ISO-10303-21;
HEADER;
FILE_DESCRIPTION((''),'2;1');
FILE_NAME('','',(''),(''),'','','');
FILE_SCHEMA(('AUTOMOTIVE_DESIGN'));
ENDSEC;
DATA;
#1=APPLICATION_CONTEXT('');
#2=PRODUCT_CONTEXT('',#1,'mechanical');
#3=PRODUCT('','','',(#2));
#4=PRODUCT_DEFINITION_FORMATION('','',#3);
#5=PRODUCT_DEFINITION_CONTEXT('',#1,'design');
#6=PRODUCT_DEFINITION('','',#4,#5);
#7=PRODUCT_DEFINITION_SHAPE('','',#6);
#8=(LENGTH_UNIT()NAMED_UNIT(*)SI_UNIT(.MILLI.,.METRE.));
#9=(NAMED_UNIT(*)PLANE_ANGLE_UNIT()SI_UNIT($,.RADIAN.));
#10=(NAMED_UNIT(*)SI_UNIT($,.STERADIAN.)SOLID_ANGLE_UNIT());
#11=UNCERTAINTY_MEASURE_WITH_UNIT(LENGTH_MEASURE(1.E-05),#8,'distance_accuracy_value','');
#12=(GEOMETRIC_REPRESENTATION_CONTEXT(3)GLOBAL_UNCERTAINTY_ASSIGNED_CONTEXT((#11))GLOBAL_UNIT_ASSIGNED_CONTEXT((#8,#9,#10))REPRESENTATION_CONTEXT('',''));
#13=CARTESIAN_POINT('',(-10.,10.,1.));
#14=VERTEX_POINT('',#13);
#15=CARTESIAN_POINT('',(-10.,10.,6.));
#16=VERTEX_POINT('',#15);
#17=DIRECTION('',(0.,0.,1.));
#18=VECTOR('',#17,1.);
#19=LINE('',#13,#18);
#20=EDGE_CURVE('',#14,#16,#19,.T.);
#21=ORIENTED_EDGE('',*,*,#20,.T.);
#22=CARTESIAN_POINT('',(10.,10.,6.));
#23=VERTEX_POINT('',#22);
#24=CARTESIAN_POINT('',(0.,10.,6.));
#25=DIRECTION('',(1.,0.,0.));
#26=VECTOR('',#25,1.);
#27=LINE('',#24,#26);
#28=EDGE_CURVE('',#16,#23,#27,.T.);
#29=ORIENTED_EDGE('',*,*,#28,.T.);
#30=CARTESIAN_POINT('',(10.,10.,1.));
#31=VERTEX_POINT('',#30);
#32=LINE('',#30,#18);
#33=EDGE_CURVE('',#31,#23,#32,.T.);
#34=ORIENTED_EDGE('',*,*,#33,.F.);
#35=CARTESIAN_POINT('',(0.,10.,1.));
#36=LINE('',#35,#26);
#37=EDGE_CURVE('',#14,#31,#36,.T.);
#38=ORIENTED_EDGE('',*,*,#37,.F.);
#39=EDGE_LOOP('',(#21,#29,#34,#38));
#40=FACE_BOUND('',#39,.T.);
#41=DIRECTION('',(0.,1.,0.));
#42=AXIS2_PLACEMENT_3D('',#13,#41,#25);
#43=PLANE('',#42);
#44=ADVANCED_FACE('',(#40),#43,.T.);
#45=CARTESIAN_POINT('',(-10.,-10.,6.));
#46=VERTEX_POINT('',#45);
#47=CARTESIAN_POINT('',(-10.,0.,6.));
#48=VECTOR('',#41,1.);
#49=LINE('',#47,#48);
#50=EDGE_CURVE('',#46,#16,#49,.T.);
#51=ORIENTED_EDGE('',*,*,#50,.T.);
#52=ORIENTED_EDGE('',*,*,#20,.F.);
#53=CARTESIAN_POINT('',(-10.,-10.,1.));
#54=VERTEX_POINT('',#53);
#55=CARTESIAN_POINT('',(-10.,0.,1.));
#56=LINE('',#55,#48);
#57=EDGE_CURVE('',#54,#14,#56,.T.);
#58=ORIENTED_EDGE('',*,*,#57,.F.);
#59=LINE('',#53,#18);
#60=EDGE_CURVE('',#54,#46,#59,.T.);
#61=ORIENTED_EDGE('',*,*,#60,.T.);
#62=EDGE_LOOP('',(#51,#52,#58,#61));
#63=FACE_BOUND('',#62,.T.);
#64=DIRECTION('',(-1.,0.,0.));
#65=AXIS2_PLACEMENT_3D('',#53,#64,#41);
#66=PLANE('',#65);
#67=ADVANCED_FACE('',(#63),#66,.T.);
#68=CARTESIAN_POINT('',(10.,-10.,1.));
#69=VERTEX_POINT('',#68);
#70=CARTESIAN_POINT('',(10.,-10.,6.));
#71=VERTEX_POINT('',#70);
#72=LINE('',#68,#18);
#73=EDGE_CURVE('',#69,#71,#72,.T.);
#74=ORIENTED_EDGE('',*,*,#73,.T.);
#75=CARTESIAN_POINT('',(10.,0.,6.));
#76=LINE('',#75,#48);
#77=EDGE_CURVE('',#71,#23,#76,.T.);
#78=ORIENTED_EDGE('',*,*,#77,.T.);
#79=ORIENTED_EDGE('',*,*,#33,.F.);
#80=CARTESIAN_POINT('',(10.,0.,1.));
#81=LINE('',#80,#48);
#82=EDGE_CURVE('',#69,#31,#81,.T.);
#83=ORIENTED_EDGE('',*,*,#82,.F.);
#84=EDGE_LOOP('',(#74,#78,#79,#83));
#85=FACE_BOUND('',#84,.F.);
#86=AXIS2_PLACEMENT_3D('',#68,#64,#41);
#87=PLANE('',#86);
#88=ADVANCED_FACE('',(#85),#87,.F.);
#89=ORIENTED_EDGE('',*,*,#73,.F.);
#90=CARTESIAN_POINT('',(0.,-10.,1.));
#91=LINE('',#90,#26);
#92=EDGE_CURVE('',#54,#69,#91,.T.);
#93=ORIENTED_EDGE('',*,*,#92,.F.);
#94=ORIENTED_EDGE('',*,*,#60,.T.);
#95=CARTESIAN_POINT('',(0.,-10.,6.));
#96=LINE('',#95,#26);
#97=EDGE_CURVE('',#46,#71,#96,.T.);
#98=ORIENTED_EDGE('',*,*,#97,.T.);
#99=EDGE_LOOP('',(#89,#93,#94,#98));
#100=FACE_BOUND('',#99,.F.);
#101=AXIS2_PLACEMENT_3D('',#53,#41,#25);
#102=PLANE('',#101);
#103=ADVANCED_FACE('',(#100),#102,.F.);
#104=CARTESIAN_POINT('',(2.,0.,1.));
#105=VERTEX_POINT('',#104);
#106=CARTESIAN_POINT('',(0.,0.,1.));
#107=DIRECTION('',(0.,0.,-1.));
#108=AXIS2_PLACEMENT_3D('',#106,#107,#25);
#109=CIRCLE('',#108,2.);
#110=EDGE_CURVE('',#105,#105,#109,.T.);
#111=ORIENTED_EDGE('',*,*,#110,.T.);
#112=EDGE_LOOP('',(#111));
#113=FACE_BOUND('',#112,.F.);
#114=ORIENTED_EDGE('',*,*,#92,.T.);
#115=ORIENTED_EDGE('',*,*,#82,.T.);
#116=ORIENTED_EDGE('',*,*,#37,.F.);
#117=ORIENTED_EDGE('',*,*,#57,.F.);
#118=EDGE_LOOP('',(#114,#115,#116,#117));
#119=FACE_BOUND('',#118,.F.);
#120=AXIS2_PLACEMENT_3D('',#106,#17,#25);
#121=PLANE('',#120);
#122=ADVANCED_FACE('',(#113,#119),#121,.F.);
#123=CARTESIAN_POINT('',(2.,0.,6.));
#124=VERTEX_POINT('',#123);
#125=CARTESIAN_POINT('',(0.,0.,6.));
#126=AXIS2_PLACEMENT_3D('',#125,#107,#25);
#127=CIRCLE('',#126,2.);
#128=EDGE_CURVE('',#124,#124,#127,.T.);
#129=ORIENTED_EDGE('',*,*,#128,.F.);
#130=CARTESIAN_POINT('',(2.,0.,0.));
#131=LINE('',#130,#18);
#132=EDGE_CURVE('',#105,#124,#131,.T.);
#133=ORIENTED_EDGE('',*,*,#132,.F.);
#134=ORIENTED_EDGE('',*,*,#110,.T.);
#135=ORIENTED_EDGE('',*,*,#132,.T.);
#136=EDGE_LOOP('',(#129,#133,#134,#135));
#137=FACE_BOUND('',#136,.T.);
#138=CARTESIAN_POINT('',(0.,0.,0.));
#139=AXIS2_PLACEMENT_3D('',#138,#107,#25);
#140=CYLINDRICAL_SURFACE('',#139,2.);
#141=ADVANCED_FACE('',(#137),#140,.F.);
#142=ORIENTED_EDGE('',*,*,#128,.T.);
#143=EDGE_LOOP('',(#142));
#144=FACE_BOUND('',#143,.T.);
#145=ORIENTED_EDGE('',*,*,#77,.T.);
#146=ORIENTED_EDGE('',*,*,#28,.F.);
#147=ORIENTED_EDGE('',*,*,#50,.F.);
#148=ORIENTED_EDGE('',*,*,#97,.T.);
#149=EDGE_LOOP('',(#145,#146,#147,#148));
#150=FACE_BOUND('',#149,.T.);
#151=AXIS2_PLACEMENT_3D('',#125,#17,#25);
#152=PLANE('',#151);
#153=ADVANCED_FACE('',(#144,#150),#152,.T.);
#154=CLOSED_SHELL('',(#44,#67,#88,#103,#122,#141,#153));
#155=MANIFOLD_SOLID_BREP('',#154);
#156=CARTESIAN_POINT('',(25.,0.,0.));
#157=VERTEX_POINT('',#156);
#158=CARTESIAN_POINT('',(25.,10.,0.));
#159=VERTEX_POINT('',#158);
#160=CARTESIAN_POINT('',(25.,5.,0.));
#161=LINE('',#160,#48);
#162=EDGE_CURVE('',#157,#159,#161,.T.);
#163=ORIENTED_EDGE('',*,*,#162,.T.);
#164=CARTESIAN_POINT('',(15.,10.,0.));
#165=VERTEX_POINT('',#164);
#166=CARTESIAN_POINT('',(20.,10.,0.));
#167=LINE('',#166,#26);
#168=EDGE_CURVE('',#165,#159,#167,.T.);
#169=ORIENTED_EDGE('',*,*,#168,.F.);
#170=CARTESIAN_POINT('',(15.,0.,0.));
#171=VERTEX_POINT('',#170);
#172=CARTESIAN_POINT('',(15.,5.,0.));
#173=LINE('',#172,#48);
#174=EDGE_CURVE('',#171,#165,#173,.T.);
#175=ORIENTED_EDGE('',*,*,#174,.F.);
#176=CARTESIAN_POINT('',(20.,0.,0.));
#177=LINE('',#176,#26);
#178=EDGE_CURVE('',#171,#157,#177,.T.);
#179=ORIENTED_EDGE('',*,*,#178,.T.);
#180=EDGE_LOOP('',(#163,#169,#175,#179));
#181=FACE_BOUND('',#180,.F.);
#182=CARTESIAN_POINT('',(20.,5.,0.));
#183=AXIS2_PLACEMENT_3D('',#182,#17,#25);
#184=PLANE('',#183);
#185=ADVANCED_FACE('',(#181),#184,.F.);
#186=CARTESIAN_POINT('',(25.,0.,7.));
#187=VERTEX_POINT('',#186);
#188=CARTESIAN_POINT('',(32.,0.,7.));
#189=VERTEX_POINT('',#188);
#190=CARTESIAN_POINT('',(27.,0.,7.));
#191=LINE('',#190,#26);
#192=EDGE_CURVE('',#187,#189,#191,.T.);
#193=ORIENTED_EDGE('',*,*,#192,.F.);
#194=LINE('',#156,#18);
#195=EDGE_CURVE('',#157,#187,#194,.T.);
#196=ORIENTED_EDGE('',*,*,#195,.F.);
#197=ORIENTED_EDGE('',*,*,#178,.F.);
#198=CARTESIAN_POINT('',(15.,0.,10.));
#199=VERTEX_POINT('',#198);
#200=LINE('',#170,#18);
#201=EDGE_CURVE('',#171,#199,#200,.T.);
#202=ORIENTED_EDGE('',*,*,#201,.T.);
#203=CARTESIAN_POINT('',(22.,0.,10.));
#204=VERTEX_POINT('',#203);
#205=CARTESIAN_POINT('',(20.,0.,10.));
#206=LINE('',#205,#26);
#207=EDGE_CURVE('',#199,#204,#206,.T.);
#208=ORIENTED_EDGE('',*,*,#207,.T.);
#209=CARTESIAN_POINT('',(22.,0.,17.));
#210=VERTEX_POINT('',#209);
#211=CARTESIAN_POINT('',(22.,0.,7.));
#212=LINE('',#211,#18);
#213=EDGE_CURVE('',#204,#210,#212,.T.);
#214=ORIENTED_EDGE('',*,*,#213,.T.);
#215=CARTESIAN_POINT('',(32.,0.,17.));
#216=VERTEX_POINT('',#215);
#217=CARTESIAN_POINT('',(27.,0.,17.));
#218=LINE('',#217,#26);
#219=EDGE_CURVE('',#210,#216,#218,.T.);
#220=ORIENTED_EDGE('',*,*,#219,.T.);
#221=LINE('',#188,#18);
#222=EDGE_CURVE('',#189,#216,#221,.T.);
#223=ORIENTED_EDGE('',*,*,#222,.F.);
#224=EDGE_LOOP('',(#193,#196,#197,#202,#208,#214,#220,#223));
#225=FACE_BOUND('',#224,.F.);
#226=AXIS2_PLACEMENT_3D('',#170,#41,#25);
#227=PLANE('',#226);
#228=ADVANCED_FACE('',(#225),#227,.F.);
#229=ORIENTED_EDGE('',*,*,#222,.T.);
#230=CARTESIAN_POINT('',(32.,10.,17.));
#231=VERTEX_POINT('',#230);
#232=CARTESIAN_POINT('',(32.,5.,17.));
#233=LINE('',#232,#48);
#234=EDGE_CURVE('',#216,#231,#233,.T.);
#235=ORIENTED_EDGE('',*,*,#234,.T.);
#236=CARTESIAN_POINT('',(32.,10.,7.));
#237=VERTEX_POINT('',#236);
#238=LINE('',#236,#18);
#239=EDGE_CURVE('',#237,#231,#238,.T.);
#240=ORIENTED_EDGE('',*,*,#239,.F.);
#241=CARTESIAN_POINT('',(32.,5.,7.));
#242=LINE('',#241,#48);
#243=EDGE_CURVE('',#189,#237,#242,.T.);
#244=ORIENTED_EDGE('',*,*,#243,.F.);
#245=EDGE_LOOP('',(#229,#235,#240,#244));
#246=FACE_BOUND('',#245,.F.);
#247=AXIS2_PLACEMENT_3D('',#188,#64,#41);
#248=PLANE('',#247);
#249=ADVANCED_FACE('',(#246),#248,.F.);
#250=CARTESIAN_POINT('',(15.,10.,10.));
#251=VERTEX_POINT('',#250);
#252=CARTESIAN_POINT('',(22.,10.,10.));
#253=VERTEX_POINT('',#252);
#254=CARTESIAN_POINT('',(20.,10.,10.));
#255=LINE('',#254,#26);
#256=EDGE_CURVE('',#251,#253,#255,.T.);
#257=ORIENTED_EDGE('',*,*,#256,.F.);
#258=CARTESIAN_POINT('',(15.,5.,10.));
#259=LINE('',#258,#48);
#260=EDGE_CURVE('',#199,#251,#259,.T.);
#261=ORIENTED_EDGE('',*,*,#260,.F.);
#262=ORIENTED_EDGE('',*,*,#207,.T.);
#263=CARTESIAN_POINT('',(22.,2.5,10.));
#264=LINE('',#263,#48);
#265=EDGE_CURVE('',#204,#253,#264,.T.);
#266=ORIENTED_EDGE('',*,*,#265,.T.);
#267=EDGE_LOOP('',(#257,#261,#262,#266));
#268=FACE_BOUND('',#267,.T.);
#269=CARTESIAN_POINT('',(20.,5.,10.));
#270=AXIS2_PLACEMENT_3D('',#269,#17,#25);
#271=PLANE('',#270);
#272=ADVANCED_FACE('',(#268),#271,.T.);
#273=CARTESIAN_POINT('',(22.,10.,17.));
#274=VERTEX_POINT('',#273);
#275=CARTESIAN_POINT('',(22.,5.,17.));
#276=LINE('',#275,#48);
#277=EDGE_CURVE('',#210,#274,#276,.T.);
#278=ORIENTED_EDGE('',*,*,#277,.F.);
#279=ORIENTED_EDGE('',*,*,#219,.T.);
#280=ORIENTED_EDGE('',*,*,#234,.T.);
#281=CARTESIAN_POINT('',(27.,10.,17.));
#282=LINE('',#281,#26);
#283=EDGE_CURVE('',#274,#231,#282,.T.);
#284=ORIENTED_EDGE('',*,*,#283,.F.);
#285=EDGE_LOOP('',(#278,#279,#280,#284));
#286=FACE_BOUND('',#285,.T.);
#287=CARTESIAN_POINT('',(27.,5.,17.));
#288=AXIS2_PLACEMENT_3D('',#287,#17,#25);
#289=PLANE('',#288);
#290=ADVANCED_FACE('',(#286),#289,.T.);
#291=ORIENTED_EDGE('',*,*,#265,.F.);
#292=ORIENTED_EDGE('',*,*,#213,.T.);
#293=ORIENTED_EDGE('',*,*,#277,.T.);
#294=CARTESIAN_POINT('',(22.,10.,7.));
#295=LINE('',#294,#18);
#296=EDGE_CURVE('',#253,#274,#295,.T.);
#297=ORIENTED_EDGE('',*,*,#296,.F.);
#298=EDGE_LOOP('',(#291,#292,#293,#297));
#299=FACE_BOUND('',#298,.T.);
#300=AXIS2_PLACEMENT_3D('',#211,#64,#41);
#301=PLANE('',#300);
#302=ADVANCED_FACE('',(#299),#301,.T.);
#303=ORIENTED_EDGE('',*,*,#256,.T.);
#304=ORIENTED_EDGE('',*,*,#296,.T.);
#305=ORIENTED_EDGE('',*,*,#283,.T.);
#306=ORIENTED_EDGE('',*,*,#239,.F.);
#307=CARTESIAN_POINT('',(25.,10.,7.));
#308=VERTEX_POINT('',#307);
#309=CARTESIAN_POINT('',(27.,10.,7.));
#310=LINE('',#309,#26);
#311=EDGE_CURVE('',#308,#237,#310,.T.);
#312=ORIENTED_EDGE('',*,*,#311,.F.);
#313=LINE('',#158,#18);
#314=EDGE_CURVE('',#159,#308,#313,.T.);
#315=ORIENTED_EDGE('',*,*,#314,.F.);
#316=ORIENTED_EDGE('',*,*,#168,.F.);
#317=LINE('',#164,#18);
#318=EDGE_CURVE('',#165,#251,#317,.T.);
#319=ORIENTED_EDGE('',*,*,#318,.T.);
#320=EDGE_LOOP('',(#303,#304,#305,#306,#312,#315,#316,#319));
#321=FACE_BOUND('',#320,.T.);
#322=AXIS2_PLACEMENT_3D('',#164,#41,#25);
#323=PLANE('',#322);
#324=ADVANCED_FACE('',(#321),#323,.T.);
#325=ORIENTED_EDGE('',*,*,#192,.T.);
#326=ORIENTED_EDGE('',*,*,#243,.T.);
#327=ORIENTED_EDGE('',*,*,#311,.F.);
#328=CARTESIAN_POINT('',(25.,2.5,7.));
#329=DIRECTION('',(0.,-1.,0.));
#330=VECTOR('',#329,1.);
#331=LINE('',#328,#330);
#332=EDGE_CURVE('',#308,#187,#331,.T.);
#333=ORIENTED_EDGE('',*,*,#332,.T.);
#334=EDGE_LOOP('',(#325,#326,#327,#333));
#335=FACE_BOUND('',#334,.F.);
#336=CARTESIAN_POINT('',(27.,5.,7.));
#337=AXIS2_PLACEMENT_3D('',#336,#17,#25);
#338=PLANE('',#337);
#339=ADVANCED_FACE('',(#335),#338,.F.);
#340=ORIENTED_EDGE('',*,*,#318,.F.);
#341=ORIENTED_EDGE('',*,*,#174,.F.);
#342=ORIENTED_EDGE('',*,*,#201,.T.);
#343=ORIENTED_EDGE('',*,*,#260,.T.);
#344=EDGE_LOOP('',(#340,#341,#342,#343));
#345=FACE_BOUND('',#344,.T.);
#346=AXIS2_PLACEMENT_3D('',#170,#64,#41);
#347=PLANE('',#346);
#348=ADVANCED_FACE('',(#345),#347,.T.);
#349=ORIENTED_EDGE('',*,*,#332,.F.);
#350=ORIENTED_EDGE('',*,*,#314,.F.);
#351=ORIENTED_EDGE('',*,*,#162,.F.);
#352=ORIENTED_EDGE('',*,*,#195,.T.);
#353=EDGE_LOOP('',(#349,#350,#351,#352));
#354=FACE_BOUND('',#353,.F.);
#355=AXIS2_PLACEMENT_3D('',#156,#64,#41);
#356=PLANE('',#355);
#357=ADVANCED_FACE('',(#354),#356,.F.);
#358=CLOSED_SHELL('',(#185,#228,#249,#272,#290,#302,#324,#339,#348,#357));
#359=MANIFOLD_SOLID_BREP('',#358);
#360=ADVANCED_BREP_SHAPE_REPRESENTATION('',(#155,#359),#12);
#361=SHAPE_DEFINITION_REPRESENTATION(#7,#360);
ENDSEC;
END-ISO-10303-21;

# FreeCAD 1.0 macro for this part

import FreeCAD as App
import Part
import Sketcher
from FreeCAD import Vector
Q = App.Units.Quantity


def add_polygon(sketch, points):
    """Adds a closed chain of lines whose ends are joined by coincident constraints."""
    first, n = sketch.GeometryCount, len(points)
    for a, b in zip(points, points[1:] + points[:1]):
        sketch.addGeometry(Part.LineSegment(App.Vector(*a, 0), App.Vector(*b, 0)), False)
    for i in range(n):
        sketch.addConstraint(Sketcher.Constraint("Coincident", first + i, 2, first + (i + 1) % n, 1))

doc = App.newDocument("Part")
body = doc.addObject("PartDesign::Body", "Body")

# Sketch on XY plane
sketch1 = doc.addObject("Sketcher::SketchObject", "Sketch")
body.addObject(sketch1)
sketch1.AttachmentSupport = (doc.XY_Plane, [""])
sketch1.MapMode = "FlatFace"
sketch1.addGeometry(Part.Circle(Vector(0, 0, 0), Vector(0, 0, 1), 2), False)
sketch1.addConstraint([
    Sketcher.Constraint("Coincident", 0, 3, -1, 1),
    Sketcher.Constraint("Diameter", 0, Q("4 mm")),
])
pad1 = doc.addObject("PartDesign::Pad", "Pad")
body.addObject(pad1)
pad1.Profile = sketch1
pad1.Length = 10
body2 = doc.addObject("PartDesign::Body", "Body001")

# Sketch on XY plane
sketch2 = doc.addObject("Sketcher::SketchObject", "Sketch001")
body2.addObject(sketch2)
sketch2.AttachmentSupport = (doc.getObject("XY_Plane001"), [""])
sketch2.MapMode = "FlatFace"
sketch2.AttachmentOffset = App.Placement(Vector(0, 0, 1), App.Rotation())
add_polygon(sketch2, [(-10, 10), (-10, -10), (10, -10), (10, 10)])  # lines 0-3
sketch2.addConstraint([
    Sketcher.Constraint("Vertical", 0),
    Sketcher.Constraint("Horizontal", 1),
    Sketcher.Constraint("Vertical", 2),
    Sketcher.Constraint("Horizontal", 3),
    Sketcher.Constraint("Symmetric", 0, 2, 2, 2, -1, 1),
    Sketcher.Constraint("Equal", 3, 0),
    Sketcher.Constraint("DistanceX", 1, 1, 1, 2, Q("20 mm")),
])
pad2 = doc.addObject("PartDesign::Pad", "Pad001")
body2.addObject(pad2)
pad2.Profile = sketch2
pad2.Length = 5
doc.recompute()

boolean = doc.addObject("PartDesign::Boolean", "Boolean")
body2.addObject(boolean)
boolean.Type = "Cut"
boolean.addObjects([body])
body3 = doc.addObject("PartDesign::Body", "Body002")

# Sketch on XY plane
sketch3 = doc.addObject("Sketcher::SketchObject", "Sketch002")
body3.addObject(sketch3)
sketch3.AttachmentSupport = (doc.getObject("XY_Plane002"), [""])
sketch3.MapMode = "FlatFace"
add_polygon(sketch3, [(15, 10), (15, 0), (25, 0), (25, 10)])  # lines 0-3
sketch3.addConstraint([
    Sketcher.Constraint("Vertical", 0),
    Sketcher.Constraint("Horizontal", 1),
    Sketcher.Constraint("Vertical", 2),
    Sketcher.Constraint("Horizontal", 3),
    Sketcher.Constraint("PointOnObject", 0, 2, -1),
    Sketcher.Constraint("Equal", 3, 0),
    Sketcher.Constraint("DistanceX", 1, 1, 1, 2, Q("10 mm")),
    Sketcher.Constraint("DistanceX", -1, 1, 0, 2, Q("15 mm")),
])
pad3 = doc.addObject("PartDesign::Pad", "Pad002")
body3.addObject(pad3)
pad3.Profile = sketch3
pad3.Length = 10
body4 = doc.addObject("PartDesign::Body", "Body003")

# Sketch on XY plane
sketch4 = doc.addObject("Sketcher::SketchObject", "Sketch003")
body4.addObject(sketch4)
sketch4.AttachmentSupport = (doc.getObject("XY_Plane003"), [""])
sketch4.MapMode = "FlatFace"
sketch4.AttachmentOffset = App.Placement(Vector(0, 0, 7), App.Rotation())
add_polygon(sketch4, [(22, 10), (22, 0), (32, 0), (32, 10)])  # lines 0-3
sketch4.addConstraint([
    Sketcher.Constraint("Vertical", 0),
    Sketcher.Constraint("Horizontal", 1),
    Sketcher.Constraint("Vertical", 2),
    Sketcher.Constraint("Horizontal", 3),
    Sketcher.Constraint("PointOnObject", 0, 2, -1),
    Sketcher.Constraint("Equal", 3, 0),
    Sketcher.Constraint("DistanceX", 1, 1, 1, 2, Q("10 mm")),
    Sketcher.Constraint("DistanceX", -1, 1, 0, 2, Q("22 mm")),
])
pad4 = doc.addObject("PartDesign::Pad", "Pad003")
body4.addObject(pad4)
pad4.Profile = sketch4
pad4.Length = 10
doc.recompute()

boolean2 = doc.addObject("PartDesign::Boolean", "Boolean001")
body4.addObject(boolean2)
boolean2.Type = "Fuse"
boolean2.addObjects([body3])

doc.recompute()
